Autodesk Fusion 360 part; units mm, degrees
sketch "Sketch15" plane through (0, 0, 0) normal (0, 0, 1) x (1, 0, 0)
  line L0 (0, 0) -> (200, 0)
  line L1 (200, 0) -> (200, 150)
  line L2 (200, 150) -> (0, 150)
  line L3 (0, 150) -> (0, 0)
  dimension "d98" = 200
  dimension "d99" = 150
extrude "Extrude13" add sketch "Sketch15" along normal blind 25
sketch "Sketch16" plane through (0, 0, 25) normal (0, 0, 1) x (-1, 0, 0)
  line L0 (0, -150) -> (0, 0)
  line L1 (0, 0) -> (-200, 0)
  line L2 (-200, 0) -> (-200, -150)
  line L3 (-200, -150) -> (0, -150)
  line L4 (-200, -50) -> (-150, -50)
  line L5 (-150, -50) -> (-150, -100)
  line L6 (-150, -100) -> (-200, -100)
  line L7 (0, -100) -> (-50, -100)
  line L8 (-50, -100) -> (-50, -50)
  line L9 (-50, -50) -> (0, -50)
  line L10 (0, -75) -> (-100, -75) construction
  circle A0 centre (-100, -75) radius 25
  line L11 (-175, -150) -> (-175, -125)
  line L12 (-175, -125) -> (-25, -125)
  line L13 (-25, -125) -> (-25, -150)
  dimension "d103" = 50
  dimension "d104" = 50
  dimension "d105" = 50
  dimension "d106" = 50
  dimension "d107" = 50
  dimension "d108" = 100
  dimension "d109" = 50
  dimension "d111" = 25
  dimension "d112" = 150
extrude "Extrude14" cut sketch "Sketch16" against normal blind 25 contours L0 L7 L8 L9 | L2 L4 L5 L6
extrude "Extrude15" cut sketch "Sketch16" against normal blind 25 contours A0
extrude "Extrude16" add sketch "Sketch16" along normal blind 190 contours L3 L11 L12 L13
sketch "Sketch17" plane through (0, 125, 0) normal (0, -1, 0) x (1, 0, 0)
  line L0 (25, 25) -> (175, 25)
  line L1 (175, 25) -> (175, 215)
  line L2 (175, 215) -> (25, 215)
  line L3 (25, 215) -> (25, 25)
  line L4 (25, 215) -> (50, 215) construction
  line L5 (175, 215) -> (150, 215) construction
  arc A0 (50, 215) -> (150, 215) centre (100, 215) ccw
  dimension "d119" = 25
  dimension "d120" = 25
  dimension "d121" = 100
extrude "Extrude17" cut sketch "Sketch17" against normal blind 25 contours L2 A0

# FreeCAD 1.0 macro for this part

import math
import FreeCAD as App
import Part
import Sketcher


def add_polygon(sketch, points):
    """Adds a closed chain of lines whose ends are joined by coincident constraints."""
    first, n = sketch.GeometryCount, len(points)
    for a, b in zip(points, points[1:] + points[:1]):
        sketch.addGeometry(Part.LineSegment(App.Vector(*a, 0), App.Vector(*b, 0)), False)
    for i in range(n):
        sketch.addConstraint(Sketcher.Constraint("Coincident", first + i, 2, first + (i + 1) % n, 1))

doc = App.newDocument("Part")
body = doc.addObject("PartDesign::Body", "Body")

# Sketch on XY plane
sketch1 = body.newObject("Sketcher::SketchObject", "Sketch")
sketch1.AttachmentSupport = (doc.getObject("XY_Plane"), [""])
sketch1.MapMode = "FlatFace"
add_polygon(sketch1, [(0, 150), (0, 0), (200, 0), (200, 150)])  # lines 0-3
sketch1.addConstraint([
    Sketcher.Constraint("Vertical", 0),
    Sketcher.Constraint("Horizontal", 1),
    Sketcher.Constraint("Vertical", 2),
    Sketcher.Constraint("Horizontal", 3),
    Sketcher.Constraint("Coincident", 0, 2, -1, 1),
    Sketcher.Constraint("DistanceX", 1, 1, 1, 2, 200.0),
    Sketcher.Constraint("DistanceY", 0, 2, 0, 1, 150.0),
])
pad1 = body.newObject("PartDesign::Pad", "Pad")
pad1.Profile = sketch1
pad1.Length = 25

# Sketch on XY plane
sketch2 = body.newObject("Sketcher::SketchObject", "Sketch001")
sketch2.AttachmentSupport = (doc.getObject("XY_Plane"), [""])
sketch2.MapMode = "FlatFace"
sketch2.AttachmentOffset = App.Placement(App.Vector(0, 0, 25), App.Rotation())
add_polygon(sketch2, [(50, 100), (0, 100), (0, 50), (50, 50)])  # lines 0-3
add_polygon(sketch2, [(200, 50), (200, 100), (150, 100), (150, 50)])  # lines 4-7
sketch2.addConstraint([
    Sketcher.Constraint("Horizontal", 0),
    Sketcher.Constraint("Vertical", 1),
    Sketcher.Constraint("Horizontal", 2),
    Sketcher.Constraint("Vertical", 3),
    Sketcher.Constraint("Vertical", 4),
    Sketcher.Constraint("Horizontal", 5),
    Sketcher.Constraint("Vertical", 6),
    Sketcher.Constraint("Horizontal", 7),
    Sketcher.Constraint("PointOnObject", 0, 2, -2),
    Sketcher.Constraint("Horizontal", 3, 2, 4, 2),
    Sketcher.Constraint("Horizontal", 2, 2, 6, 2),
    Sketcher.Constraint("Equal", 2, 5),
    Sketcher.Constraint("Equal", 7, 1),
    Sketcher.Constraint("DistanceX", 0, 2, 0, 1, 50.0),
    Sketcher.Constraint("DistanceY", -1, 1, 0, 2, 100.0),
    Sketcher.Constraint("DistanceX", -1, 1, 5, 2, 150.0),
])
pocket1 = body.newObject("PartDesign::Pocket", "Pocket")
pocket1.Profile = sketch2
pocket1.Length = 25

# Sketch on XY plane
sketch3 = body.newObject("Sketcher::SketchObject", "Sketch002")
sketch3.AttachmentSupport = (doc.getObject("XY_Plane"), [""])
sketch3.MapMode = "FlatFace"
sketch3.AttachmentOffset = App.Placement(App.Vector(0, 0, 25), App.Rotation())
sketch3.addGeometry(Part.Circle(App.Vector(100, 75, 0), App.Vector(0, 0, 1), 25), False)
sketch3.addConstraint([
    Sketcher.Constraint("Diameter", 0, 50.0),
    Sketcher.Constraint("DistanceX", -1, 1, 0, 3, 100.0),
    Sketcher.Constraint("DistanceY", -1, 1, 0, 3, 75.0),
])
pocket2 = body.newObject("PartDesign::Pocket", "Pocket001")
pocket2.Profile = sketch3
pocket2.Length = 25

# Sketch on XY plane
sketch4 = body.newObject("Sketcher::SketchObject", "Sketch003")
sketch4.AttachmentSupport = (doc.getObject("XY_Plane"), [""])
sketch4.MapMode = "FlatFace"
sketch4.AttachmentOffset = App.Placement(App.Vector(0, 0, 25), App.Rotation())
add_polygon(sketch4, [(175, 150), (25, 150), (25, 125), (175, 125)])  # lines 0-3
sketch4.addConstraint([
    Sketcher.Constraint("Horizontal", 0),
    Sketcher.Constraint("Vertical", 1),
    Sketcher.Constraint("Horizontal", 2),
    Sketcher.Constraint("Vertical", 3),
    Sketcher.Constraint("DistanceX", 0, 2, 0, 1, 150.0),
    Sketcher.Constraint("DistanceY", 1, 2, 1, 1, 25.0),
    Sketcher.Constraint("DistanceX", -1, 1, 0, 2, 25.0),
    Sketcher.Constraint("DistanceY", -1, 1, 0, 2, 150.0),
])
pad2 = body.newObject("PartDesign::Pad", "Pad001")
pad2.Profile = sketch4
pad2.Length = 190

# Sketch on XZ plane
sketch5 = body.newObject("Sketcher::SketchObject", "Sketch004")
sketch5.AttachmentSupport = (doc.getObject("XZ_Plane"), [""])
sketch5.MapMode = "FlatFace"
sketch5.AttachmentOffset = App.Placement(App.Vector(0, 0, -125), App.Rotation())
sketch5.addGeometry([
    Part.LineSegment(App.Vector(150, 215, 0), App.Vector(50, 215, 0)),
    Part.ArcOfCircle(Part.Circle(App.Vector(100, 215, 0), App.Vector(0, 0, 1), 50), math.radians(180), math.radians(360)),
], False)
sketch5.addConstraint([
    Sketcher.Constraint("Coincident", 0, 1, 1, 2),
    Sketcher.Constraint("Coincident", 1, 1, 0, 2),
    Sketcher.Constraint("Horizontal", 0),
    Sketcher.Constraint("Horizontal", 1, 3, 0, 1),
    Sketcher.Constraint("Radius", 1, 50.0),
    Sketcher.Constraint("DistanceX", -1, 1, 1, 3, 100.0),
    Sketcher.Constraint("DistanceY", -1, 1, 1, 3, 215.0),
])
pocket3 = body.newObject("PartDesign::Pocket", "Pocket002")
pocket3.Profile = sketch5
pocket3.Length = 25

doc.recompute()
